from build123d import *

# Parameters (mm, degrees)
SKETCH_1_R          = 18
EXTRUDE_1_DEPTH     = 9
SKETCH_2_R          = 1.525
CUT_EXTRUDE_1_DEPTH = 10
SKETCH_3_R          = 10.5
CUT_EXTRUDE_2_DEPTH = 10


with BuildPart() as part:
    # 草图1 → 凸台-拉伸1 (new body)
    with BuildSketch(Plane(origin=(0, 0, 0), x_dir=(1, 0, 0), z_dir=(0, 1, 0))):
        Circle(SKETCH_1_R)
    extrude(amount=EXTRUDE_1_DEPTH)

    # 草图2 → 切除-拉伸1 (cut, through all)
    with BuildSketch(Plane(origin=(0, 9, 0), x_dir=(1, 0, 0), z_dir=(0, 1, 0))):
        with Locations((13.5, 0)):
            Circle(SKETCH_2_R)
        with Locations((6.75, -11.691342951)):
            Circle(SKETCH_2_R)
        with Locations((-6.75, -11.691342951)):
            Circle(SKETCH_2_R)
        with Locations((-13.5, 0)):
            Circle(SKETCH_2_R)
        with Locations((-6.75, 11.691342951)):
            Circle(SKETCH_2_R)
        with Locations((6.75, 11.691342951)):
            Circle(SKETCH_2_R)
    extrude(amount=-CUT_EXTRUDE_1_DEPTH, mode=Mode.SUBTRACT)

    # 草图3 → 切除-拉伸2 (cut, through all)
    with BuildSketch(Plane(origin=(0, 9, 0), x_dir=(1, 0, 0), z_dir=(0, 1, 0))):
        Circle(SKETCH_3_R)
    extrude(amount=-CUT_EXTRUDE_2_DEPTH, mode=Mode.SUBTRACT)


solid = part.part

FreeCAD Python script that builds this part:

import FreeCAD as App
import Part
import Sketcher

V = App.Vector
Q = App.Units.Quantity

doc = App.newDocument("Part")
body = doc.addObject("PartDesign::Body", "Body")

sketch1 = body.newObject("Sketcher::SketchObject", "Sketch")
sketch1.AttachmentSupport = (doc.getObject("XZ_Plane"), [""])
sketch1.MapMode = "FlatFace"
sketch1.addGeometry(Part.Circle(V(0, 0, 0), V(0, 0, 1), 18), False)
sketch1.addConstraint(Sketcher.Constraint("Coincident", 0, 3, -1, 1))
sketch1.addConstraint(Sketcher.Constraint("Diameter", 0, Q("36 mm")))
pad1 = body.newObject("PartDesign::Pad", "Pad")
pad1.Profile = sketch1
pad1.Length = 9
pad1.Reversed = True

sketch2 = body.newObject("Sketcher::SketchObject", "Sketch001")
sketch2.AttachmentSupport = (doc.getObject("XZ_Plane"), [""])
sketch2.MapMode = "FlatFace"
sketch2.AttachmentOffset = App.Placement(V(0, 0, -9), App.Rotation())
sketch2.addGeometry(Part.Circle(V(13.5, 0, 0), V(0, 0, 1), 1.525), False)
sketch2.addGeometry(Part.Circle(V(6.75, 11.691343, 0), V(0, 0, 1), 1.525), False)
sketch2.addGeometry(Part.Circle(V(-6.75, 11.691343, 0), V(0, 0, 1), 1.525), False)
sketch2.addGeometry(Part.Circle(V(-13.5, 0, 0), V(0, 0, 1), 1.525), False)
sketch2.addGeometry(Part.Circle(V(-6.75, -11.691343, 0), V(0, 0, 1), 1.525), False)
sketch2.addGeometry(Part.Circle(V(6.75, -11.691343, 0), V(0, 0, 1), 1.525), False)
sketch2.addConstraint(Sketcher.Constraint("Equal", 0, 1))
sketch2.addConstraint(Sketcher.Constraint("Equal", 1, 2))
sketch2.addConstraint(Sketcher.Constraint("Equal", 2, 3))
sketch2.addConstraint(Sketcher.Constraint("Equal", 3, 4))
sketch2.addConstraint(Sketcher.Constraint("Equal", 4, 5))
sketch2.addConstraint(Sketcher.Constraint("Symmetric", 0, 3, 3, 3, -1, 1))
sketch2.addConstraint(Sketcher.Constraint("Symmetric", 1, 3, 4, 3, -1, 1))
sketch2.addConstraint(Sketcher.Constraint("Symmetric", 2, 3, 5, 3, -1, 1))
sketch2.addConstraint(Sketcher.Constraint("Symmetric", 1, 3, 2, 3, -2))
sketch2.addConstraint(Sketcher.Constraint("PointOnObject", 0, 3, -1))
sketch2.addConstraint(Sketcher.Constraint("Diameter", 0, Q("3.05 mm")))
sketch2.addConstraint(Sketcher.Constraint("DistanceX", 3, 3, 0, 3, Q("27 mm")))
sketch2.addConstraint(Sketcher.Constraint("DistanceX", 2, 3, 1, 3, Q("13.5 mm")))
sketch2.addConstraint(Sketcher.Constraint("DistanceY", -1, 1, 1, 3, Q("11.691343 mm")))
pocket1 = body.newObject("PartDesign::Pocket", "Pocket")
pocket1.Profile = sketch2
pocket1.Type = "ThroughAll"
pocket1.Reversed = True

sketch3 = body.newObject("Sketcher::SketchObject", "Sketch002")
sketch3.AttachmentSupport = (doc.getObject("XZ_Plane"), [""])
sketch3.MapMode = "FlatFace"
sketch3.AttachmentOffset = App.Placement(V(0, 0, -9), App.Rotation())
sketch3.addGeometry(Part.Circle(V(0, 0, 0), V(0, 0, 1), 10.5), False)
sketch3.addConstraint(Sketcher.Constraint("Coincident", 0, 3, -1, 1))
sketch3.addConstraint(Sketcher.Constraint("Diameter", 0, Q("21 mm")))
pocket2 = body.newObject("PartDesign::Pocket", "Pocket001")
pocket2.Profile = sketch3
pocket2.Type = "ThroughAll"
pocket2.Reversed = True

doc.recompute()
